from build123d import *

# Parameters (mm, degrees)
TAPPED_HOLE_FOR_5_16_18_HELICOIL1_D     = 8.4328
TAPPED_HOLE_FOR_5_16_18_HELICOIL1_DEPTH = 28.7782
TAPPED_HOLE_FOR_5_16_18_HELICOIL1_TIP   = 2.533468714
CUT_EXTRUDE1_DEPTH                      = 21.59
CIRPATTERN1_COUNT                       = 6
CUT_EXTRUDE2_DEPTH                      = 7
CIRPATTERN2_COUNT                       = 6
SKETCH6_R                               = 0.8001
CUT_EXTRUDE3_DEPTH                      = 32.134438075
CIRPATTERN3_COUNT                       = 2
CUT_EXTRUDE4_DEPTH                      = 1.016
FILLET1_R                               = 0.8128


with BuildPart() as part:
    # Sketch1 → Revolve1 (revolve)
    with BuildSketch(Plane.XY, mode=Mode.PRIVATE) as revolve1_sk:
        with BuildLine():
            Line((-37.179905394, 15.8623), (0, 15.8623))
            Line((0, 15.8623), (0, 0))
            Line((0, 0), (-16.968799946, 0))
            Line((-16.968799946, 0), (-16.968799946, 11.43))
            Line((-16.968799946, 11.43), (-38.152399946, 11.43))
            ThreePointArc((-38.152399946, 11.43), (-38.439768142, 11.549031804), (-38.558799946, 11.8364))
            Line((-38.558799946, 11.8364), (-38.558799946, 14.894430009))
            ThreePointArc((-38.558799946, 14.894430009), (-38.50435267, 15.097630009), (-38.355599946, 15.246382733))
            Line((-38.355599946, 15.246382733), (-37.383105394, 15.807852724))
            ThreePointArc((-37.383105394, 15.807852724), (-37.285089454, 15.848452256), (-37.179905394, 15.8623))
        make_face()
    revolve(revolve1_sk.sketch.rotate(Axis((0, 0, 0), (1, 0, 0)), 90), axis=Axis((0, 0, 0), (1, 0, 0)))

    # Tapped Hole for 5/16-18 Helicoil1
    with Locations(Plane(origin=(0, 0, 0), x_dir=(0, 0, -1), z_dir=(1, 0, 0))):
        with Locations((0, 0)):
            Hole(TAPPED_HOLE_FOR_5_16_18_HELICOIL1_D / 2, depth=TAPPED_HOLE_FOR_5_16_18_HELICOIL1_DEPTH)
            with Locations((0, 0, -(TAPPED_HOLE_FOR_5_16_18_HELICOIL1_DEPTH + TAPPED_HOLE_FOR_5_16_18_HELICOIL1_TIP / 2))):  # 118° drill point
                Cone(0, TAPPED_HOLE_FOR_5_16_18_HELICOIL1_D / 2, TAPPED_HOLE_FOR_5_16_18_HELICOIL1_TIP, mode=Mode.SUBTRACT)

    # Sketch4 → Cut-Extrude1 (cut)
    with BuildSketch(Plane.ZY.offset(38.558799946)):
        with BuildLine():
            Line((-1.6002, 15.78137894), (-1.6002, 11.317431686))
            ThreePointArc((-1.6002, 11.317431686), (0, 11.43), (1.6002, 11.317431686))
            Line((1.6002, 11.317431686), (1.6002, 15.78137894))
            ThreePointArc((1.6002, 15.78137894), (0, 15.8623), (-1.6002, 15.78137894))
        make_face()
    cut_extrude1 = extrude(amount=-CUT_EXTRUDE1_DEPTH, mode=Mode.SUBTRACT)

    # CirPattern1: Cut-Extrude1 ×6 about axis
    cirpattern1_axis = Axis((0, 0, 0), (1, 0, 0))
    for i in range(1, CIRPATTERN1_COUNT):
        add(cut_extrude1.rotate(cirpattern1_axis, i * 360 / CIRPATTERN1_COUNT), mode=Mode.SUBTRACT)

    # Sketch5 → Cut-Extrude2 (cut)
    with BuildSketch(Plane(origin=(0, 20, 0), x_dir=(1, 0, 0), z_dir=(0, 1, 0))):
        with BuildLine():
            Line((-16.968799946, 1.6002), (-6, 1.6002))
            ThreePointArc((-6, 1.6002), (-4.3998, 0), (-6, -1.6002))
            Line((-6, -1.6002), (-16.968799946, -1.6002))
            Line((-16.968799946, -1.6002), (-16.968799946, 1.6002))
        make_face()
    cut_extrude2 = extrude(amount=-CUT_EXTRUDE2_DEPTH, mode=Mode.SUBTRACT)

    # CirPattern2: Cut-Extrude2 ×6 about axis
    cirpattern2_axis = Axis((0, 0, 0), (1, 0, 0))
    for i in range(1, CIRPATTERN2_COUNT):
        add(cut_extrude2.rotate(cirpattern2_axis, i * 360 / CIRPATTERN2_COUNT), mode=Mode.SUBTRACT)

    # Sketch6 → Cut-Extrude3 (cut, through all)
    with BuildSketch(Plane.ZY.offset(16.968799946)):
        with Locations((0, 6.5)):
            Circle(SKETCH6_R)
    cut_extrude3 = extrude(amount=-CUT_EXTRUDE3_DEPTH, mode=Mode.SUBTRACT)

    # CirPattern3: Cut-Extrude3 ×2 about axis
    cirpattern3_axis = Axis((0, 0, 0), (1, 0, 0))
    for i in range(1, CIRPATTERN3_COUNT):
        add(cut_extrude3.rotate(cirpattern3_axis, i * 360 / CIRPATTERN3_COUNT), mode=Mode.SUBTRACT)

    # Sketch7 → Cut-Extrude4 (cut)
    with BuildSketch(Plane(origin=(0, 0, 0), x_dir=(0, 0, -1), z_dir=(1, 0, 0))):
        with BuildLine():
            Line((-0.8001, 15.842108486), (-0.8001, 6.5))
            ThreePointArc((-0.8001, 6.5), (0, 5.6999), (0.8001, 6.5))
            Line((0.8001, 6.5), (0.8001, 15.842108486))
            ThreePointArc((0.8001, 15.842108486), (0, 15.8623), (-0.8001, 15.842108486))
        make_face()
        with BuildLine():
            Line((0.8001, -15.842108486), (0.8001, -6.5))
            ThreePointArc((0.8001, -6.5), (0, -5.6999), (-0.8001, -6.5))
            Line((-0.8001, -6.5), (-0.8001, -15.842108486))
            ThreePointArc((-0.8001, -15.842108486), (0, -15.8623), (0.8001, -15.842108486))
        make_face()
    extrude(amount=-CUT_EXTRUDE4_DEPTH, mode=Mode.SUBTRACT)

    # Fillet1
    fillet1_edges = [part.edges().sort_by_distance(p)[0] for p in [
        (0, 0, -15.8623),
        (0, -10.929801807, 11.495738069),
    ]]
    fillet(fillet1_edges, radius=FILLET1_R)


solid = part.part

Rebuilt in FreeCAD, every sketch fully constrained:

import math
import FreeCAD as App
import Part
import Sketcher
Q = App.Units.Quantity


def edges_at(feature, points):
    """Names of the edges that pass closest to the given points."""
    edges = feature.Shape.Edges
    near = lambda p: min(range(len(edges)), key=lambda i: edges[i].distToShape(Part.Vertex(*p))[0])
    return sorted({f"Edge{near(p) + 1}" for p in points})

doc = App.newDocument("Part")
body = doc.addObject("PartDesign::Body", "Body")

# Sketch on XY plane
sketch1 = body.newObject("Sketcher::SketchObject", "Sketch")
sketch1.AttachmentSupport = (doc.getObject("XY_Plane"), [""])
sketch1.MapMode = "FlatFace"
sketch1.addGeometry(Part.LineSegment(App.Vector(0, 15.86, 0), App.Vector(-37.18, 15.86, 0)), False)
sketch1.addGeometry(Part.ArcOfCircle(Part.Circle(App.Vector(-37.18, 15.46, 0), App.Vector(0, 0, 1), 0.41), math.radians(90), math.radians(120)), False)
sketch1.addGeometry(Part.LineSegment(App.Vector(-37.38, 15.81, 0), App.Vector(-38.36, 15.25, 0)), False)
sketch1.addGeometry(Part.ArcOfCircle(Part.Circle(App.Vector(-38.15, 14.89, 0), App.Vector(0, 0, 1), 0.41), math.radians(120), math.radians(180)), False)
sketch1.addGeometry(Part.LineSegment(App.Vector(-38.56, 14.89, 0), App.Vector(-38.56, 11.84, 0)), False)
sketch1.addGeometry(Part.ArcOfCircle(Part.Circle(App.Vector(-38.15, 11.84, 0), App.Vector(0, 0, 1), 0.41), math.radians(180), math.radians(270)), False)
sketch1.addGeometry(Part.LineSegment(App.Vector(-38.15, 11.43, 0), App.Vector(-16.97, 11.43, 0)), False)
sketch1.addGeometry(Part.LineSegment(App.Vector(-16.97, 11.43, 0), App.Vector(-16.97, 0, 0)), False)
sketch1.addGeometry(Part.LineSegment(App.Vector(-16.97, 0, 0), App.Vector(0, 0, 0)), False)
sketch1.addGeometry(Part.LineSegment(App.Vector(0, 0, 0), App.Vector(0, 15.86, 0)), False)
sketch1.addConstraint(Sketcher.Constraint("Tangent", 0, 2, 1, 1))
sketch1.addConstraint(Sketcher.Constraint("Tangent", 1, 2, 2, 1))
sketch1.addConstraint(Sketcher.Constraint("Tangent", 2, 2, 3, 1))
sketch1.addConstraint(Sketcher.Constraint("Tangent", 3, 2, 4, 1))
sketch1.addConstraint(Sketcher.Constraint("Tangent", 4, 2, 5, 1))
sketch1.addConstraint(Sketcher.Constraint("Tangent", 5, 2, 6, 1))
sketch1.addConstraint(Sketcher.Constraint("Coincident", 6, 2, 7, 1))
sketch1.addConstraint(Sketcher.Constraint("Coincident", 7, 2, 8, 1))
sketch1.addConstraint(Sketcher.Constraint("Coincident", 8, 2, 9, 1))
sketch1.addConstraint(Sketcher.Constraint("Coincident", 9, 2, 0, 1))
sketch1.addConstraint(Sketcher.Constraint("Horizontal", 0))
sketch1.addConstraint(Sketcher.Constraint("Vertical", 4))
sketch1.addConstraint(Sketcher.Constraint("Horizontal", 6))
sketch1.addConstraint(Sketcher.Constraint("Vertical", 7))
sketch1.addConstraint(Sketcher.Constraint("Horizontal", 8))
sketch1.addConstraint(Sketcher.Constraint("Vertical", 9))
sketch1.addConstraint(Sketcher.Constraint("Coincident", 8, 2, -1, 1))
sketch1.addConstraint(Sketcher.Constraint("Equal", 1, 3))
sketch1.addConstraint(Sketcher.Constraint("Equal", 3, 5))
sketch1.addConstraint(Sketcher.Constraint("Angle", 2, Q("-150 deg")))
sketch1.addConstraint(Sketcher.Constraint("Radius", 1, Q("0.016 in")))
sketch1.addConstraint(Sketcher.Constraint("DistanceY", 7, 2, 7, 1, Q("0.45 in")))
sketch1.addConstraint(Sketcher.Constraint("DistanceX", 6, 1, 6, 2, Q("0.834 in")))
sketch1.addConstraint(Sketcher.Constraint("DistanceY", 9, 1, 9, 2, Q("0.6245 in")))
sketch1.addConstraint(Sketcher.Constraint("DistanceX", 8, 1, 8, 2, 16.9688))
sketch1.addConstraint(Sketcher.Constraint("DistanceY", 4, 2, 4, 1, 3.05803))
revolution = body.newObject("PartDesign::Revolution", "Revolution")
revolution.Profile = sketch1
revolution.ReferenceAxis = (sketch1, ["H_Axis"])
revolution.Angle = 360

# Sketch on YZ plane
sketch2 = body.newObject("Sketcher::SketchObject", "Sketch001")
sketch2.AttachmentSupport = (doc.getObject("YZ_Plane"), [""])
sketch2.MapMode = "FlatFace"
sketch2.addGeometry(Part.Circle(App.Vector(0, 0, 0), App.Vector(0, 0, 1), 4.2), False)
sketch2.addConstraint(Sketcher.Constraint("Coincident", 0, 3, -1, 1))
sketch2.addConstraint(Sketcher.Constraint("Diameter", 0, Q("0.332 in")))
doc.recompute()
hole = body.newObject("PartDesign::Hole", "Hole")
hole.Profile = sketch2
hole.ThreadType = "None"
hole.Diameter = Q("0.332 in")
hole.DepthType = "Dimension"
hole.Depth = Q("1.133 in")
hole.DrillPoint = "Angled"
hole.DrillPointAngle = 118

# Sketch on YZ plane
sketch3 = body.newObject("Sketcher::SketchObject", "Sketch002")
sketch3.AttachmentSupport = (doc.getObject("YZ_Plane"), [""])
sketch3.MapMode = "FlatFace"
sketch3.AttachmentOffset = App.Placement(App.Vector(0, 0, -38.5588), App.Rotation())
sketch3.addGeometry(Part.LineSegment(App.Vector(15.8, -1.6, 0), App.Vector(11.3, -1.6, 0)), False)
sketch3.addGeometry(Part.ArcOfCircle(Part.Circle(App.Vector(0, 0, 0), App.Vector(0, 0, 1), 11.4), math.radians(-8.05), math.radians(8.05)), False)
sketch3.addGeometry(Part.LineSegment(App.Vector(11.3, 1.6, 0), App.Vector(15.8, 1.6, 0)), False)
sketch3.addGeometry(Part.ArcOfCircle(Part.Circle(App.Vector(0, 0, 0), App.Vector(0, 0, 1), 15.9), math.radians(-5.79), math.radians(5.79)), False)
sketch3.addConstraint(Sketcher.Constraint("Coincident", 0, 2, 1, 1))
sketch3.addConstraint(Sketcher.Constraint("Coincident", 1, 2, 2, 1))
sketch3.addConstraint(Sketcher.Constraint("Coincident", 2, 2, 3, 2))
sketch3.addConstraint(Sketcher.Constraint("Coincident", 3, 1, 0, 1))
sketch3.addConstraint(Sketcher.Constraint("Horizontal", 0))
sketch3.addConstraint(Sketcher.Constraint("Horizontal", 2))
sketch3.addConstraint(Sketcher.Constraint("Coincident", 1, 3, -1, 1))
sketch3.addConstraint(Sketcher.Constraint("Coincident", 3, 3, -1, 1))
sketch3.addConstraint(Sketcher.Constraint("Vertical", 0, 2, 1, 2))
sketch3.addConstraint(Sketcher.Constraint("Radius", 1, Q("0.45 in")))
sketch3.addConstraint(Sketcher.Constraint("Radius", 3, Q("0.6245 in")))
sketch3.addConstraint(Sketcher.Constraint("DistanceY", 0, 2, -1, 1, Q("0.063 in")))
pocket1 = body.newObject("PartDesign::Pocket", "Pocket")
pocket1.Profile = sketch3
pocket1.Length = Q("0.85 in")
pocket1.Reversed = True
doc.recompute()

polarpattern = body.newObject("PartDesign::PolarPattern", "PolarPattern")
polarpattern.Originals = [pocket1]
polarpattern.Axis = (doc.getObject("X_Axis"), [""])
polarpattern.Angle = 360
polarpattern.Occurrences = 6
body.Tip = polarpattern

# Sketch on XZ plane
sketch4 = body.newObject("Sketcher::SketchObject", "Sketch003")
sketch4.AttachmentSupport = (doc.getObject("XZ_Plane"), [""])
sketch4.MapMode = "FlatFace"
sketch4.AttachmentOffset = App.Placement(App.Vector(0, 0, -20), App.Rotation())
sketch4.addGeometry(Part.LineSegment(App.Vector(-6, -1.6, 0), App.Vector(-17, -1.6, 0)), False)
sketch4.addGeometry(Part.LineSegment(App.Vector(-17, -1.6, 0), App.Vector(-17, 1.6, 0)), False)
sketch4.addGeometry(Part.LineSegment(App.Vector(-17, 1.6, 0), App.Vector(-6, 1.6, 0)), False)
sketch4.addGeometry(Part.ArcOfCircle(Part.Circle(App.Vector(-6, 0, 0), App.Vector(0, 0, 1), 1.6), math.radians(-90), math.radians(90)), False)
sketch4.addConstraint(Sketcher.Constraint("Coincident", 0, 2, 1, 1))
sketch4.addConstraint(Sketcher.Constraint("Coincident", 1, 2, 2, 1))
sketch4.addConstraint(Sketcher.Constraint("Tangent", 2, 2, 3, 2))
sketch4.addConstraint(Sketcher.Constraint("Tangent", 3, 1, 0, 1))
sketch4.addConstraint(Sketcher.Constraint("Horizontal", 0))
sketch4.addConstraint(Sketcher.Constraint("Vertical", 1))
sketch4.addConstraint(Sketcher.Constraint("Horizontal", 2))
sketch4.addConstraint(Sketcher.Constraint("PointOnObject", 3, 3, -1))
sketch4.addConstraint(Sketcher.Constraint("Radius", 3, Q("0.063 in")))
sketch4.addConstraint(Sketcher.Constraint("DistanceX", 0, 2, 0, 1, 10.9688))
sketch4.addConstraint(Sketcher.Constraint("DistanceX", 3, 3, -1, 1, 6.0))
pocket2 = body.newObject("PartDesign::Pocket", "Pocket001")
pocket2.Profile = sketch4
pocket2.Length = 7
pocket2.Reversed = True
doc.recompute()

polarpattern2 = body.newObject("PartDesign::PolarPattern", "PolarPattern001")
polarpattern2.Originals = [pocket2]
polarpattern2.Axis = (doc.getObject("X_Axis"), [""])
polarpattern2.Angle = 360
polarpattern2.Occurrences = 6
body.Tip = polarpattern2

# Sketch on YZ plane
sketch5 = body.newObject("Sketcher::SketchObject", "Sketch004")
sketch5.AttachmentSupport = (doc.getObject("YZ_Plane"), [""])
sketch5.MapMode = "FlatFace"
sketch5.AttachmentOffset = App.Placement(App.Vector(0, 0, -16.9688), App.Rotation())
sketch5.addGeometry(Part.Circle(App.Vector(6.5, 0, 0), App.Vector(0, 0, 1), 0.8), False)
sketch5.addConstraint(Sketcher.Constraint("PointOnObject", 0, 3, -1))
sketch5.addConstraint(Sketcher.Constraint("Diameter", 0, Q("0.063 in")))
sketch5.addConstraint(Sketcher.Constraint("DistanceX", -1, 1, 0, 3, 6.5))
pocket3 = body.newObject("PartDesign::Pocket", "Pocket002")
pocket3.Profile = sketch5
pocket3.Type = "ThroughAll"
pocket3.Reversed = True
doc.recompute()

polarpattern3 = body.newObject("PartDesign::PolarPattern", "PolarPattern002")
polarpattern3.Originals = [pocket3]
polarpattern3.Axis = (doc.getObject("X_Axis"), [""])
polarpattern3.Angle = 360
polarpattern3.Occurrences = 2
body.Tip = polarpattern3

# Sketch on YZ plane
sketch6 = body.newObject("Sketcher::SketchObject", "Sketch005")
sketch6.AttachmentSupport = (doc.getObject("YZ_Plane"), [""])
sketch6.MapMode = "FlatFace"
sketch6.addGeometry(Part.LineSegment(App.Vector(15.8, 0.8, 0), App.Vector(6.5, 0.8, 0)), False)
sketch6.addGeometry(Part.ArcOfCircle(Part.Circle(App.Vector(6.5, 0, 0), App.Vector(0, 0, 1), 0.8), math.radians(90), math.radians(270)), False)
sketch6.addGeometry(Part.LineSegment(App.Vector(6.5, -0.8, 0), App.Vector(15.8, -0.8, 0)), False)
sketch6.addGeometry(Part.ArcOfCircle(Part.Circle(App.Vector(0, 0, 0), App.Vector(0, 0, 1), 15.9), math.radians(-2.89), math.radians(2.89)), False)
sketch6.addGeometry(Part.LineSegment(App.Vector(-15.8, -0.8, 0), App.Vector(-6.5, -0.8, 0)), False)
sketch6.addGeometry(Part.ArcOfCircle(Part.Circle(App.Vector(-6.5, 0, 0), App.Vector(0, 0, 1), 0.8), math.radians(-90), math.radians(90)), False)
sketch6.addGeometry(Part.LineSegment(App.Vector(-6.5, 0.8, 0), App.Vector(-15.8, 0.8, 0)), False)
sketch6.addGeometry(Part.ArcOfCircle(Part.Circle(App.Vector(0, 0, 0), App.Vector(0, 0, 1), 15.9), math.radians(177.11), math.radians(182.89)), False)
sketch6.addConstraint(Sketcher.Constraint("Tangent", 0, 2, 1, 1))
sketch6.addConstraint(Sketcher.Constraint("Tangent", 1, 2, 2, 1))
sketch6.addConstraint(Sketcher.Constraint("Coincident", 2, 2, 3, 1))
sketch6.addConstraint(Sketcher.Constraint("Coincident", 3, 2, 0, 1))
sketch6.addConstraint(Sketcher.Constraint("Tangent", 4, 2, 5, 1))
sketch6.addConstraint(Sketcher.Constraint("Tangent", 5, 2, 6, 1))
sketch6.addConstraint(Sketcher.Constraint("Coincident", 6, 2, 7, 1))
sketch6.addConstraint(Sketcher.Constraint("Coincident", 7, 2, 4, 1))
sketch6.addConstraint(Sketcher.Constraint("Horizontal", 0))
sketch6.addConstraint(Sketcher.Constraint("Horizontal", 2))
sketch6.addConstraint(Sketcher.Constraint("Horizontal", 4))
sketch6.addConstraint(Sketcher.Constraint("Horizontal", 6))
sketch6.addConstraint(Sketcher.Constraint("Coincident", 3, 3, -1, 1))
sketch6.addConstraint(Sketcher.Constraint("Coincident", 7, 3, -1, 1))
sketch6.addConstraint(Sketcher.Constraint("Equal", 1, 5))
sketch6.addConstraint(Sketcher.Constraint("Equal", 3, 7))
sketch6.addConstraint(Sketcher.Constraint("Symmetric", 1, 3, 5, 3, -1, 1))
sketch6.addConstraint(Sketcher.Constraint("PointOnObject", 1, 3, -1))
sketch6.addConstraint(Sketcher.Constraint("Radius", 1, Q("0.0315 in")))
sketch6.addConstraint(Sketcher.Constraint("Radius", 3, Q("0.6245 in")))
sketch6.addConstraint(Sketcher.Constraint("DistanceX", 0, 2, 0, 1, 9.342108))
pocket4 = body.newObject("PartDesign::Pocket", "Pocket003")
pocket4.Profile = sketch6
pocket4.Length = Q("0.04 in")
doc.recompute()

fillet = body.newObject("PartDesign::Fillet", "Fillet")
fillet.Base = (pocket4, edges_at(pocket4, [(0, 0, -15.862), (0, -10.93, 11.496)]))
fillet.Radius = Q("0.032 in")

doc.recompute()
